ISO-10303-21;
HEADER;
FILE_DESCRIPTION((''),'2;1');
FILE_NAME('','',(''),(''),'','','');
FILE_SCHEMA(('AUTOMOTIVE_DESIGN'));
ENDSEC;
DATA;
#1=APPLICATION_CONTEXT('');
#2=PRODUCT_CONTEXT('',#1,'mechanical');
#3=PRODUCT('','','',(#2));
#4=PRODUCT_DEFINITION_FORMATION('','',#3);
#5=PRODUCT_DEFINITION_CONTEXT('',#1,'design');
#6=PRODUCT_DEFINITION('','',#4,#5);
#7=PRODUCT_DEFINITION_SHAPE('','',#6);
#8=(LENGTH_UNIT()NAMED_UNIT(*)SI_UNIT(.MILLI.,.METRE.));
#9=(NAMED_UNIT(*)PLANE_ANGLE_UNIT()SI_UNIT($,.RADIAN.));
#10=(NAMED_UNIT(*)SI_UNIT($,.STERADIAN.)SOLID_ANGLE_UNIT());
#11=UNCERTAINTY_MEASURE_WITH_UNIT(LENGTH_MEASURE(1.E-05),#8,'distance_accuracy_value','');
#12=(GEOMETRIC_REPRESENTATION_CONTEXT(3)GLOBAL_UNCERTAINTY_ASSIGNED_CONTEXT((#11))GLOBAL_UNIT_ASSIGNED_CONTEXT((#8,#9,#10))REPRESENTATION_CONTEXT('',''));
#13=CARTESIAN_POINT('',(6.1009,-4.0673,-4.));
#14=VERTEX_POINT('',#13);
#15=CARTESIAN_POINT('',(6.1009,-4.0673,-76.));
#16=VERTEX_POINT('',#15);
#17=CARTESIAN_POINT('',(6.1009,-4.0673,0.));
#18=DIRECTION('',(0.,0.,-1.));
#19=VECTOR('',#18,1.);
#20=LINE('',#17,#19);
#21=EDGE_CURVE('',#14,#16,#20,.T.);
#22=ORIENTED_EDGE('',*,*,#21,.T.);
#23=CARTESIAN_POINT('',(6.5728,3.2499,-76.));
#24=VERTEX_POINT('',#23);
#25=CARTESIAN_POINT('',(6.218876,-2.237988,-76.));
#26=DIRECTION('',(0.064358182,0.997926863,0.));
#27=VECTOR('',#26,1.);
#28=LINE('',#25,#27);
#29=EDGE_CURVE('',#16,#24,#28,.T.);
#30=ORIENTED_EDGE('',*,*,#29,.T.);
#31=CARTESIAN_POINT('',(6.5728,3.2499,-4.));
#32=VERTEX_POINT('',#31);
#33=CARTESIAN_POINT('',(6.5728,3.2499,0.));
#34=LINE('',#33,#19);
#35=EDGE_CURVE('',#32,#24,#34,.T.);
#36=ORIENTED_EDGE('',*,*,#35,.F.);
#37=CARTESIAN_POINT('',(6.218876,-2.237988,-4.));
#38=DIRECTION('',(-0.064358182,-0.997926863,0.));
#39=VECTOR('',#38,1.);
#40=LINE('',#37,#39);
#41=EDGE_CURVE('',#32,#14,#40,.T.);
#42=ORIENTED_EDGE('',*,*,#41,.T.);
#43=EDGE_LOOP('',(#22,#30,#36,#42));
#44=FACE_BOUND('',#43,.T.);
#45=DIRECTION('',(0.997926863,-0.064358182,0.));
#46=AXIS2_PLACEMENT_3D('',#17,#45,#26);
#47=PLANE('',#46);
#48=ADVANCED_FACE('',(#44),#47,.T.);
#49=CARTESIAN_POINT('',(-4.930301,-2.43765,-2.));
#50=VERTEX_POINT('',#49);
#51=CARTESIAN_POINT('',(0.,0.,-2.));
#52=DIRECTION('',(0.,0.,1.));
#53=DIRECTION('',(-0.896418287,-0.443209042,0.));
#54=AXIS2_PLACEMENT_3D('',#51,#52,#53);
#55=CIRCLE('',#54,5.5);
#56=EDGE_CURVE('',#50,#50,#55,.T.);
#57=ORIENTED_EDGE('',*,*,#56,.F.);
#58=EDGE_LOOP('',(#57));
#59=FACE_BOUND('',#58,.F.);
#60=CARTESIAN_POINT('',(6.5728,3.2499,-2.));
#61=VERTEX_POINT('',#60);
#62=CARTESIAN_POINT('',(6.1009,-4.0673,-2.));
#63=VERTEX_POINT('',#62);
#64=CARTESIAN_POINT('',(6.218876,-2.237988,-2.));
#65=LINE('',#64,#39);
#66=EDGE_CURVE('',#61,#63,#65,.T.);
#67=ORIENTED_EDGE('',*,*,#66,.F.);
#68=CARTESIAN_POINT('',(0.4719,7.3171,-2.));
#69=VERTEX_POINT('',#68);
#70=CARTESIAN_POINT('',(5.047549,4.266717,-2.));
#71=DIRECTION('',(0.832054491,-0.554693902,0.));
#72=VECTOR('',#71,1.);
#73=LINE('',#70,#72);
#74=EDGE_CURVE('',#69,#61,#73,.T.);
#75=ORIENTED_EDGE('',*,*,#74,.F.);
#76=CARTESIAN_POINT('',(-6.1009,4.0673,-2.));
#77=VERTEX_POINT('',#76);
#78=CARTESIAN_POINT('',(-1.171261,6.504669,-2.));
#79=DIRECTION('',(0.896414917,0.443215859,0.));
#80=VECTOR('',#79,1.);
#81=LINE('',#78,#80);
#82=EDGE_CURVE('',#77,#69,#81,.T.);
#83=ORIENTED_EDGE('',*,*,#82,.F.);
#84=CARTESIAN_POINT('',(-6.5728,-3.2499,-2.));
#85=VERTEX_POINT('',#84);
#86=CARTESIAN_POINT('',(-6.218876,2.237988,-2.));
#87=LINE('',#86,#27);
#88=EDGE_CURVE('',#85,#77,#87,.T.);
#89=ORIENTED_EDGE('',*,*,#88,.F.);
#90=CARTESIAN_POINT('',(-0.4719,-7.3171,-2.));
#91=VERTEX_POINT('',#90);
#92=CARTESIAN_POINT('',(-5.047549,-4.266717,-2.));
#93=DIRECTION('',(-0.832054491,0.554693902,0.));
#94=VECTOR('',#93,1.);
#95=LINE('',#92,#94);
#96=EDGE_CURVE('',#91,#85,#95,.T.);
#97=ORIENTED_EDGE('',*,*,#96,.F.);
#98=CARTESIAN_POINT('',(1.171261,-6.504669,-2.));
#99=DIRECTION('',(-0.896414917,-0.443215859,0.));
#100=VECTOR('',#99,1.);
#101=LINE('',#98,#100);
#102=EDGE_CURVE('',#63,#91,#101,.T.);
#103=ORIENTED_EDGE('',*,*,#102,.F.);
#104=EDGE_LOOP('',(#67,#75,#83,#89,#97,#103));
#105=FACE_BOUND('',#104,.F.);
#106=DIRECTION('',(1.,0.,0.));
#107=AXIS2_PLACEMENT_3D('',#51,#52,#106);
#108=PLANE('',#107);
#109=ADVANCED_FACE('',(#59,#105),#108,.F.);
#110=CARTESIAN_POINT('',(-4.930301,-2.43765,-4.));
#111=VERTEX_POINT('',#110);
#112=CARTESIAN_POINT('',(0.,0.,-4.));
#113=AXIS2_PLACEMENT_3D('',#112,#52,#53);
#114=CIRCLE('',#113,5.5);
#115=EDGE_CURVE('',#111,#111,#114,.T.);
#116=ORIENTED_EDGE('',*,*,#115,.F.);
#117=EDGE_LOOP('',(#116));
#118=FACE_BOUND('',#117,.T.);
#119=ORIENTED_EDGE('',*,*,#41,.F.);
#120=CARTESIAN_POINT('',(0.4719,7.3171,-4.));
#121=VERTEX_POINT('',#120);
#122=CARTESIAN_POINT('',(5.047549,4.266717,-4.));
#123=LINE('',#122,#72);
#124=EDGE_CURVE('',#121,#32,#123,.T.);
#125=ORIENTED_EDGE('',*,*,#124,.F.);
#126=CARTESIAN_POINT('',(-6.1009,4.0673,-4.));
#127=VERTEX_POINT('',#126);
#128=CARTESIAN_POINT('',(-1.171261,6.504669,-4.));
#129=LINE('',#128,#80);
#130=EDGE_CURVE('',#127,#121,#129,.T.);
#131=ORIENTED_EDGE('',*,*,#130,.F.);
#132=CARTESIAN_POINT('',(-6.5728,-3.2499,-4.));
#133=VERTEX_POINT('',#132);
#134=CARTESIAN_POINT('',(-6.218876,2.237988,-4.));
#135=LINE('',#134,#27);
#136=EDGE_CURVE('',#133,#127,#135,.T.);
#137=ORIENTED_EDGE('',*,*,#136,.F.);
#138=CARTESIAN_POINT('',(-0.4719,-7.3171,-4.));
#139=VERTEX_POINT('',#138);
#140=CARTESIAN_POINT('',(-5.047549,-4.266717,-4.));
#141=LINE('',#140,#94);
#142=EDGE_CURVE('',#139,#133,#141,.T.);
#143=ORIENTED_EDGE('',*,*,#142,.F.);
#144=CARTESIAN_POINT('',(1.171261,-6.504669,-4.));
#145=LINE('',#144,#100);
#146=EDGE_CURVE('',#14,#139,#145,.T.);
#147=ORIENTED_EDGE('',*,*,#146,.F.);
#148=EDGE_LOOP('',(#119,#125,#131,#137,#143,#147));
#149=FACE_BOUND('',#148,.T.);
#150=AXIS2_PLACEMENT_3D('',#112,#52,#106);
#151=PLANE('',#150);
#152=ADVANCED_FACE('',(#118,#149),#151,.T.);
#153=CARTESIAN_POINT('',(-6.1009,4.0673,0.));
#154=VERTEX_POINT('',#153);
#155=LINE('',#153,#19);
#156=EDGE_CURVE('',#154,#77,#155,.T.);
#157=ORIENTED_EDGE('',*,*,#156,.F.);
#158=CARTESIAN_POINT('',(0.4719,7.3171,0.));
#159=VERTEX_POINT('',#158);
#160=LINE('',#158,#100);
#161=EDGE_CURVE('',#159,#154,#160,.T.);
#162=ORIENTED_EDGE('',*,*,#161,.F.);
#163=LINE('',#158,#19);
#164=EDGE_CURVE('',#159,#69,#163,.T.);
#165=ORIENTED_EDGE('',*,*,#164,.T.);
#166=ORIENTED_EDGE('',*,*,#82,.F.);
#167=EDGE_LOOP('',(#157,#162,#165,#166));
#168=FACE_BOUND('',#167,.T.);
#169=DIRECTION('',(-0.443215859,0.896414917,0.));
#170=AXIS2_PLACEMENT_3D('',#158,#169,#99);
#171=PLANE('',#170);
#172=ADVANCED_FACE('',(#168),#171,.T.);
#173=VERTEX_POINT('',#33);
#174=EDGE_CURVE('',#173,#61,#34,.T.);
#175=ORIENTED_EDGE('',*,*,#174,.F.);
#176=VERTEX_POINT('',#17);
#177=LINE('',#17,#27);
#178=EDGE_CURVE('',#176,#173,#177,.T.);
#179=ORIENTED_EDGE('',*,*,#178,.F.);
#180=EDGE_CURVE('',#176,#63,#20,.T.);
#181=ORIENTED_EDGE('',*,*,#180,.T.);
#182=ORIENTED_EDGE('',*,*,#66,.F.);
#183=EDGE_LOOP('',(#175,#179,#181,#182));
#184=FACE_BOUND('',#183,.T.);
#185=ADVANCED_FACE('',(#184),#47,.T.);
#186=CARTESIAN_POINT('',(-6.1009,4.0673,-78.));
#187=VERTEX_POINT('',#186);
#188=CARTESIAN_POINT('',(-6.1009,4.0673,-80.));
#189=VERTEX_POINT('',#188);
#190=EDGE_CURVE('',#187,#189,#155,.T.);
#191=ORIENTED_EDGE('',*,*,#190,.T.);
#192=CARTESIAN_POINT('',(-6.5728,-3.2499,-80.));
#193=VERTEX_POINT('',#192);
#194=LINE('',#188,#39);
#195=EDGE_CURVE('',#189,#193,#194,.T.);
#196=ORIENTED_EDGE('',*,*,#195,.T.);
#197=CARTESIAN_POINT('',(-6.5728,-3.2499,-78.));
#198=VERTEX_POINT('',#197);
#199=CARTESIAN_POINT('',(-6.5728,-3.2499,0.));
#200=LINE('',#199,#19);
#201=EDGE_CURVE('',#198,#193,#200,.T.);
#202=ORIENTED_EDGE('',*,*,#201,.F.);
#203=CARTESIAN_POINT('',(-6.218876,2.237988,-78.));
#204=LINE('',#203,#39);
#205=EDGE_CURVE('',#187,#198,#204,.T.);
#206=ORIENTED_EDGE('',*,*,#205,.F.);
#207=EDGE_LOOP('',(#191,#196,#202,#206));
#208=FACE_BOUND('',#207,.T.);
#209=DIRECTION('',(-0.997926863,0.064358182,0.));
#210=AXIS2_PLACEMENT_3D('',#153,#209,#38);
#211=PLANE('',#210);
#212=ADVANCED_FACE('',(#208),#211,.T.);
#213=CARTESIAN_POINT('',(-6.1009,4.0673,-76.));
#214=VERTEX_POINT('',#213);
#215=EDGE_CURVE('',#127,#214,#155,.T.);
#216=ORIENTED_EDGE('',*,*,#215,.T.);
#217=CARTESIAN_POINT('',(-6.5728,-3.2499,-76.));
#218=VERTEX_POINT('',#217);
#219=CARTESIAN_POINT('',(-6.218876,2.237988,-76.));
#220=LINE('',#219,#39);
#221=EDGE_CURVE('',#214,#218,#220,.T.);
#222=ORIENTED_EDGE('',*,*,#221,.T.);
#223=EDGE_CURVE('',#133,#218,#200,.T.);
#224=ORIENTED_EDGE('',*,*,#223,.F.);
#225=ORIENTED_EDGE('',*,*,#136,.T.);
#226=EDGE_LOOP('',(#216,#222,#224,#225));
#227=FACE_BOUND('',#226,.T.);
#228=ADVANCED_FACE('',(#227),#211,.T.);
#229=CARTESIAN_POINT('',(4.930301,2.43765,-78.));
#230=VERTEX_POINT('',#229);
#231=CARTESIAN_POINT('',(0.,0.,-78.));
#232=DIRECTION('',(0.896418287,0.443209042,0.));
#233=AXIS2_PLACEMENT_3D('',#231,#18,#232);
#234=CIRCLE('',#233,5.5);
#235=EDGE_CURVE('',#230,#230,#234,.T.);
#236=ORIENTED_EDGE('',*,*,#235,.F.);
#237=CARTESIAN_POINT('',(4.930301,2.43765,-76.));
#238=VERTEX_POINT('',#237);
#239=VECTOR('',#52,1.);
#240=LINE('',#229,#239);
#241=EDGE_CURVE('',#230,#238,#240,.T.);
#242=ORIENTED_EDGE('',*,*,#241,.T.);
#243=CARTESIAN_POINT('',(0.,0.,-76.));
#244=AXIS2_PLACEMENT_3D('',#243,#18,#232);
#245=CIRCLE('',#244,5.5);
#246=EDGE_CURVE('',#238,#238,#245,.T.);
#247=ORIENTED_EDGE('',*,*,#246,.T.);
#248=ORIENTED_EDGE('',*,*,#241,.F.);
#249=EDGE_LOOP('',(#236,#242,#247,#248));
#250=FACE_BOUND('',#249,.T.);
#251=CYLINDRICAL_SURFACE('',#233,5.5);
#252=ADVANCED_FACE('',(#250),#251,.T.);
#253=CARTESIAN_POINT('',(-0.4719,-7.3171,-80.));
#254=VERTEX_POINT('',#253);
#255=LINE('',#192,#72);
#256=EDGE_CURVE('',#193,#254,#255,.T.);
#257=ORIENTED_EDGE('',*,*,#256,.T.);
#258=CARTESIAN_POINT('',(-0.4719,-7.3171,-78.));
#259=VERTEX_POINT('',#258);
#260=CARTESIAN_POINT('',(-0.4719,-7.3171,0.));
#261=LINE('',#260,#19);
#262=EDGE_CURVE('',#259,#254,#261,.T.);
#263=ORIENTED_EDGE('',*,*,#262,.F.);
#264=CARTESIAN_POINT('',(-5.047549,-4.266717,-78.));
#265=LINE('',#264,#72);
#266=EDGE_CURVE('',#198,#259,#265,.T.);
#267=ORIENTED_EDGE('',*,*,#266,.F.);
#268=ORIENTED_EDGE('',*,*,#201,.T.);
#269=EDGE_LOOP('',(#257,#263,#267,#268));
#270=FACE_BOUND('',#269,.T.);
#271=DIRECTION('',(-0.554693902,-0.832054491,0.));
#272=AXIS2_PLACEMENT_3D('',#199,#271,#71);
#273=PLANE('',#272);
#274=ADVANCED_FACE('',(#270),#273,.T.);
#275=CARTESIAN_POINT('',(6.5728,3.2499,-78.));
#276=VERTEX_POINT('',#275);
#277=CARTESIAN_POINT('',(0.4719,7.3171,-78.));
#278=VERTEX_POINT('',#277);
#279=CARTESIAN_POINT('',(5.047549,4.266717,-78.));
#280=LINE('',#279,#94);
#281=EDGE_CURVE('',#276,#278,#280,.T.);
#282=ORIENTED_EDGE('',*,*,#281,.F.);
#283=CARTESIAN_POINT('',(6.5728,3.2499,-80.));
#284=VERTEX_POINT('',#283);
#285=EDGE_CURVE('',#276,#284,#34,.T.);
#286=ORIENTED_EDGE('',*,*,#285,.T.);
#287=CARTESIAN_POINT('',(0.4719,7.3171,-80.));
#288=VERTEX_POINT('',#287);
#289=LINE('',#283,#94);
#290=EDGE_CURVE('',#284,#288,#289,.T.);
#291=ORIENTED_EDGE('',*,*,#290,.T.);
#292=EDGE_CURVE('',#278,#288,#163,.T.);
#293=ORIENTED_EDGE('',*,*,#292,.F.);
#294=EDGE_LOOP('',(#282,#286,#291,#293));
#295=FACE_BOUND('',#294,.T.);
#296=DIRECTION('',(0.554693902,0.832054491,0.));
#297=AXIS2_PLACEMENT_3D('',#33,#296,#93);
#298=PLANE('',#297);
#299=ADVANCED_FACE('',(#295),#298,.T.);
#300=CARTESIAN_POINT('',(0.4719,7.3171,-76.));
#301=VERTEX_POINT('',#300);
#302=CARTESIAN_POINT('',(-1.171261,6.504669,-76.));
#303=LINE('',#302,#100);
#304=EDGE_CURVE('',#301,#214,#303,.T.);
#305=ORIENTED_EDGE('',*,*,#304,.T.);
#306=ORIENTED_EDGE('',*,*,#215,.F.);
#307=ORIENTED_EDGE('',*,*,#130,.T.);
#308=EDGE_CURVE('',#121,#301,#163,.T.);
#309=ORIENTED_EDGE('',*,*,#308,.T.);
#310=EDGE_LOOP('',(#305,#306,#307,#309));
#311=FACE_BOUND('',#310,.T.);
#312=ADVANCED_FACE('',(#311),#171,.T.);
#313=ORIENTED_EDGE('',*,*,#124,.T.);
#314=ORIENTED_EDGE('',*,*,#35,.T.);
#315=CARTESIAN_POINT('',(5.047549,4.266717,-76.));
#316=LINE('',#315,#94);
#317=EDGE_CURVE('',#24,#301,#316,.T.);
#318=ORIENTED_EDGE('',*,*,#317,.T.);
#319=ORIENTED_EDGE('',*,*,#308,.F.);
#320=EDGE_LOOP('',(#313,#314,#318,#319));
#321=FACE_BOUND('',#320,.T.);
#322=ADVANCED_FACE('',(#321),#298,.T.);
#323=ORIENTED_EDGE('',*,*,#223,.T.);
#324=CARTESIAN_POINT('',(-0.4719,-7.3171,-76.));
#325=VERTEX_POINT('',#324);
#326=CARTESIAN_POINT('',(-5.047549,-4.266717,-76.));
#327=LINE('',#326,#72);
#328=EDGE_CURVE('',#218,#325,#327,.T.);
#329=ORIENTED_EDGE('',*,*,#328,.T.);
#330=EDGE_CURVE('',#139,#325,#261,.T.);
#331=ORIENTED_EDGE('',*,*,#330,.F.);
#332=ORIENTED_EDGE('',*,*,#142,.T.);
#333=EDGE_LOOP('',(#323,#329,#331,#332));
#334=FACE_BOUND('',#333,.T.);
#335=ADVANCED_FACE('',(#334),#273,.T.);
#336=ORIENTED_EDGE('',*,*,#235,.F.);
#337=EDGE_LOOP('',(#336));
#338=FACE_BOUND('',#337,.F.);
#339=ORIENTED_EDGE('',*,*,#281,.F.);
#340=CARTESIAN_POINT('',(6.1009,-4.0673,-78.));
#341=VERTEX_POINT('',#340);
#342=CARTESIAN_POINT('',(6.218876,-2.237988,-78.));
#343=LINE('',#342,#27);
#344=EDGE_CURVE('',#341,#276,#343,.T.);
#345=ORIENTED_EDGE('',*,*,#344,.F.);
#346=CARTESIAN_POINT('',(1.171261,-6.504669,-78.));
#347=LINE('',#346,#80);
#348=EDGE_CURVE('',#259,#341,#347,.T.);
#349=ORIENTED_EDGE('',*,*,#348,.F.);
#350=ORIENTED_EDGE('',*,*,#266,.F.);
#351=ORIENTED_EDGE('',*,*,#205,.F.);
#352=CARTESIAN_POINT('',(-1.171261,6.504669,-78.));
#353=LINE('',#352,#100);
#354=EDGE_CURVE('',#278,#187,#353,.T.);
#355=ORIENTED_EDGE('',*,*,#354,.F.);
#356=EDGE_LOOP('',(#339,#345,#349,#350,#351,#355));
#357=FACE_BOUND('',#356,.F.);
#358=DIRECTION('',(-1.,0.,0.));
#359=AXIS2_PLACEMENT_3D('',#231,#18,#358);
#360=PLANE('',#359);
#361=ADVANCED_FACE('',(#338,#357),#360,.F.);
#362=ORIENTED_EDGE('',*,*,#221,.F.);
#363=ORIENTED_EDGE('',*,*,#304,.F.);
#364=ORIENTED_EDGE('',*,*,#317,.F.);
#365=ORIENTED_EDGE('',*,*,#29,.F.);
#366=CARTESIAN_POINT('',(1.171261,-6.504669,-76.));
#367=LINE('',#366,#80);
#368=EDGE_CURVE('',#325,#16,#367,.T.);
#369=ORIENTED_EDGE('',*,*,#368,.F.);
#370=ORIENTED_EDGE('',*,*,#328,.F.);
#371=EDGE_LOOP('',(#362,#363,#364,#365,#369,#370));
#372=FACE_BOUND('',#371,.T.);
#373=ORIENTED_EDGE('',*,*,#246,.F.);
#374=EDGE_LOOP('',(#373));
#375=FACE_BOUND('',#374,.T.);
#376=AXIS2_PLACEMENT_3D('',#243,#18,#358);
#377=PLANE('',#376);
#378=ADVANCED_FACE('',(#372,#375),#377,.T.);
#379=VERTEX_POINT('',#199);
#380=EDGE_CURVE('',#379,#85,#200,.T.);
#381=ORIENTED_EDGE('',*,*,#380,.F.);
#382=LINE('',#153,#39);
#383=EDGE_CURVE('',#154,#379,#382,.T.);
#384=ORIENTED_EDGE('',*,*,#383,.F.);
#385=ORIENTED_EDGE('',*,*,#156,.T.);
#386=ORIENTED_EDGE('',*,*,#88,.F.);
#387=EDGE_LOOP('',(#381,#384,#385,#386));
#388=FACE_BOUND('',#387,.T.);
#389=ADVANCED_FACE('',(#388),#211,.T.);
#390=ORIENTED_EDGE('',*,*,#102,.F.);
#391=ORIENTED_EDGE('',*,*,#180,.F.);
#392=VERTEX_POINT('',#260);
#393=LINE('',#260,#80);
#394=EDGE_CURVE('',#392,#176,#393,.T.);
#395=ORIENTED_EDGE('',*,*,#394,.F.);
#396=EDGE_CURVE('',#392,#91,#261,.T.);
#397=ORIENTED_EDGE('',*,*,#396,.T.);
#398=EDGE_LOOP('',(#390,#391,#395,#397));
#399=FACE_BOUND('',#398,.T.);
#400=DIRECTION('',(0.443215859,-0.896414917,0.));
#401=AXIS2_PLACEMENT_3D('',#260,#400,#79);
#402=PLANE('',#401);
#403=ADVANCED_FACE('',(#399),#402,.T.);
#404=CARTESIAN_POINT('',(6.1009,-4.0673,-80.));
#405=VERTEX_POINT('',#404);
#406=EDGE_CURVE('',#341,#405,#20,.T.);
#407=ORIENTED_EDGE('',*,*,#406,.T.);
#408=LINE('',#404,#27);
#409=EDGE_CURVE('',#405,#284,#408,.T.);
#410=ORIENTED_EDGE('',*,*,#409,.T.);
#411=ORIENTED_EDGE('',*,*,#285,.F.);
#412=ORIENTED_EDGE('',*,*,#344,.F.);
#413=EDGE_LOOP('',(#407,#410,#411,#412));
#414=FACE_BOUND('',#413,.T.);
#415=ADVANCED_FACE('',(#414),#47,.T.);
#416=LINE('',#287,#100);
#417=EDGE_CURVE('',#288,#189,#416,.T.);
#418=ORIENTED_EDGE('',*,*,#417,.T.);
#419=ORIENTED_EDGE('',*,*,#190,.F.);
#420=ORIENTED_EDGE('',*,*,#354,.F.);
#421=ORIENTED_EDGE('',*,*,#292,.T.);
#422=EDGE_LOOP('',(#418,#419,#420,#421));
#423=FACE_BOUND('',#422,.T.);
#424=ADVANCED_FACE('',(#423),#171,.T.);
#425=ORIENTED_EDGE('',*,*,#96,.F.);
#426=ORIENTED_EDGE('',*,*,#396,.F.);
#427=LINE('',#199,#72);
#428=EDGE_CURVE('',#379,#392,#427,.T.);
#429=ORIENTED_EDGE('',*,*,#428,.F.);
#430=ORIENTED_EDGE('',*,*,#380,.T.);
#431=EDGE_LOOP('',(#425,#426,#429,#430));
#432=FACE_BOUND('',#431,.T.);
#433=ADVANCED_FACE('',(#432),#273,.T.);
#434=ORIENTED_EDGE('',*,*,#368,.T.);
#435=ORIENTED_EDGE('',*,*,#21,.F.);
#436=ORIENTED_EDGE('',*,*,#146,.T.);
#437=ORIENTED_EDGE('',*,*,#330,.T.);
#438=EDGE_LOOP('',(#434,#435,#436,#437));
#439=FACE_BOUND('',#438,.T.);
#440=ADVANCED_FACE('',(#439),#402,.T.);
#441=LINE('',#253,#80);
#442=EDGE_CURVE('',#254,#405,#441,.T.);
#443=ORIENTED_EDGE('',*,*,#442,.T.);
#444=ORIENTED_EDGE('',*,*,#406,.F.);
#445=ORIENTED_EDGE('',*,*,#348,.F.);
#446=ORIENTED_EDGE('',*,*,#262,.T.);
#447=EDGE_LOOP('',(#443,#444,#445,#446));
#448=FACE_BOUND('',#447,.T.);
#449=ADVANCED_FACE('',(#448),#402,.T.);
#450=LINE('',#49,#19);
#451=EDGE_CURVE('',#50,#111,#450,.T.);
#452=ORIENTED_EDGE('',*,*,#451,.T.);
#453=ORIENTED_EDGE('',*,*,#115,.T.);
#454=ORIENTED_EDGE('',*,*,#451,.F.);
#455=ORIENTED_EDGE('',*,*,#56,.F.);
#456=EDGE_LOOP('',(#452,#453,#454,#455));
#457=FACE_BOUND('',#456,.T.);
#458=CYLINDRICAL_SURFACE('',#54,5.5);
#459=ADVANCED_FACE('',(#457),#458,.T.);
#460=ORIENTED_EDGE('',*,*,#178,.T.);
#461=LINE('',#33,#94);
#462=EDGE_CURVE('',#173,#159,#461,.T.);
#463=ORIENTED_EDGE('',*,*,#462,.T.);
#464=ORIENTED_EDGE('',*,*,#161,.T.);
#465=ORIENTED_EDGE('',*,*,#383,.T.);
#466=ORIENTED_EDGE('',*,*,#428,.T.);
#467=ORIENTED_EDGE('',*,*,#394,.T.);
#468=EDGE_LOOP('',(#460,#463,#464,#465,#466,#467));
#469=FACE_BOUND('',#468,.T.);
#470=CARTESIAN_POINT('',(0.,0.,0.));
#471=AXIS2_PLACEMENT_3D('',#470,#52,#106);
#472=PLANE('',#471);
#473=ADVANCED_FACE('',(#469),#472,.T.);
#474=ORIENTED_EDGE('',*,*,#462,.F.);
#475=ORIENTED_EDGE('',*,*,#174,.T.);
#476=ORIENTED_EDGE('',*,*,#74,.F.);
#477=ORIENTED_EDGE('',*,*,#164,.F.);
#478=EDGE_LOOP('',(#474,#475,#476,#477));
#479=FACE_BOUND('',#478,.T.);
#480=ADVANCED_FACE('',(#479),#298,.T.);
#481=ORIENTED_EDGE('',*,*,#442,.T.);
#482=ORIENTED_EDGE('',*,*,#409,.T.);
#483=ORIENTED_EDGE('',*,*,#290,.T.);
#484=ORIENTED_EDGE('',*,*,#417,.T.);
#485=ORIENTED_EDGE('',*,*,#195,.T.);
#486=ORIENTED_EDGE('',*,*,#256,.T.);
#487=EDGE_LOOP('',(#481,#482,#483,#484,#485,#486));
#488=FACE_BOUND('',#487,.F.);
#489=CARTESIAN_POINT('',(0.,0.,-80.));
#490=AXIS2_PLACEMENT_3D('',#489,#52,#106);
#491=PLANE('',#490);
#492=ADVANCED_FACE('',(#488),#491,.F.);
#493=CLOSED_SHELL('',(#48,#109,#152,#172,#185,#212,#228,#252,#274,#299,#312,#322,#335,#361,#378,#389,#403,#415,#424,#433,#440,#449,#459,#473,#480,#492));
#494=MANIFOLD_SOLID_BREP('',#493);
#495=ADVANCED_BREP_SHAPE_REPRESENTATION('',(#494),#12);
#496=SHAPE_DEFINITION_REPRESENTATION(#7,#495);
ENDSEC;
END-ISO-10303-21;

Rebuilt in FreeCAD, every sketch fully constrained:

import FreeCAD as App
import Part
import Sketcher

V = App.Vector
Q = App.Units.Quantity

doc = App.newDocument("Part")
body = doc.addObject("PartDesign::Body", "Body")

sketch1 = body.newObject("Sketcher::SketchObject", "Sketch")
sketch1.AttachmentSupport = (doc.getObject("XY_Plane"), [""])
sketch1.MapMode = "FlatFace"
sketch1.addGeometry([
    Part.LineSegment(V(0.4719, 7.3171, 0), V(-6.1009, 4.0673, 0)),
    Part.LineSegment(V(-6.1009, 4.0673, 0), V(-6.5728, -3.2499, 0)),
    Part.LineSegment(V(-6.5728, -3.2499, 0), V(-0.4719, -7.3171, 0)),
    Part.LineSegment(V(-0.4719, -7.3171, 0), V(6.1009, -4.0673, 0)),
    Part.LineSegment(V(6.1009, -4.0673, 0), V(6.5728, 3.2499, 0)),
    Part.LineSegment(V(6.5728, 3.2499, 0), V(0.4719, 7.3171, 0)),
], False)
sketch1.addConstraint([
    Sketcher.Constraint("Coincident", 0, 2, 1, 1),
    Sketcher.Constraint("Coincident", 1, 2, 2, 1),
    Sketcher.Constraint("Coincident", 2, 2, 3, 1),
    Sketcher.Constraint("Coincident", 3, 2, 4, 1),
    Sketcher.Constraint("Coincident", 4, 2, 5, 1),
    Sketcher.Constraint("Coincident", 5, 2, 0, 1),
    Sketcher.Constraint("Symmetric", 0, 2, 3, 2, -1, 1),
    Sketcher.Constraint("Symmetric", 1, 2, 4, 2, -1, 1),
    Sketcher.Constraint("Symmetric", 2, 2, 5, 2, -1, 1),
    Sketcher.Constraint("Equal", 0, 1),
    Sketcher.Constraint("Equal", 1, 2),
    Sketcher.Constraint("Angle", 0, Q("-153.6908 deg")),
    Sketcher.Constraint("Angle", 1, Q("-93.69 deg")),
    Sketcher.Constraint("Angle", 2, Q("-33.6896 deg")),
    Sketcher.Constraint("DistanceY", 1, 2, -1, 1, 3.25),
])
pad1 = body.newObject("PartDesign::Pad", "Pad")
pad1.Profile = sketch1
pad1.Length = 80
pad1.Reversed = True

sketch2 = body.newObject("Sketcher::SketchObject", "Sketch001")
sketch2.AttachmentSupport = (doc.getObject("XY_Plane"), [""])
sketch2.MapMode = "FlatFace"
sketch2.AttachmentOffset = App.Placement(V(0, 0, -2), App.Rotation())
sketch2.addGeometry([
    Part.Circle(V(0, 0, 0), V(0, 0, 1), 13.1424),
    Part.Circle(V(0, 0, 0), V(0, 0, 1), 5.5),
], False)
sketch2.addConstraint([
    Sketcher.Constraint("Coincident", 0, 3, -1, 1),
    Sketcher.Constraint("Coincident", 1, 3, -1, 1),
    Sketcher.Constraint("Diameter", 1, 11.0),
    Sketcher.Constraint("Diameter", 0, 26.2848),
])
pocket1 = body.newObject("PartDesign::Pocket", "Pocket")
pocket1.Profile = sketch2
pocket1.Length = 2

sketch3 = body.newObject("Sketcher::SketchObject", "Sketch002")
sketch3.AttachmentSupport = (doc.getObject("XY_Plane"), [""])
sketch3.MapMode = "FlatFace"
sketch3.AttachmentOffset = App.Placement(V(0, 0, -78), App.Rotation())
sketch3.addGeometry([
    Part.Circle(V(0, 0, 0), V(0, 0, 1), 13.1424),
    Part.Circle(V(0, 0, 0), V(0, 0, 1), 5.5),
], False)
sketch3.addConstraint([
    Sketcher.Constraint("Coincident", 0, 3, -1, 1),
    Sketcher.Constraint("Coincident", 1, 3, -1, 1),
    Sketcher.Constraint("Diameter", 1, 11.0),
    Sketcher.Constraint("Diameter", 0, 26.2848),
])
pocket2 = body.newObject("PartDesign::Pocket", "Pocket001")
pocket2.Profile = sketch3
pocket2.Length = 2
pocket2.Reversed = True

doc.recompute()
